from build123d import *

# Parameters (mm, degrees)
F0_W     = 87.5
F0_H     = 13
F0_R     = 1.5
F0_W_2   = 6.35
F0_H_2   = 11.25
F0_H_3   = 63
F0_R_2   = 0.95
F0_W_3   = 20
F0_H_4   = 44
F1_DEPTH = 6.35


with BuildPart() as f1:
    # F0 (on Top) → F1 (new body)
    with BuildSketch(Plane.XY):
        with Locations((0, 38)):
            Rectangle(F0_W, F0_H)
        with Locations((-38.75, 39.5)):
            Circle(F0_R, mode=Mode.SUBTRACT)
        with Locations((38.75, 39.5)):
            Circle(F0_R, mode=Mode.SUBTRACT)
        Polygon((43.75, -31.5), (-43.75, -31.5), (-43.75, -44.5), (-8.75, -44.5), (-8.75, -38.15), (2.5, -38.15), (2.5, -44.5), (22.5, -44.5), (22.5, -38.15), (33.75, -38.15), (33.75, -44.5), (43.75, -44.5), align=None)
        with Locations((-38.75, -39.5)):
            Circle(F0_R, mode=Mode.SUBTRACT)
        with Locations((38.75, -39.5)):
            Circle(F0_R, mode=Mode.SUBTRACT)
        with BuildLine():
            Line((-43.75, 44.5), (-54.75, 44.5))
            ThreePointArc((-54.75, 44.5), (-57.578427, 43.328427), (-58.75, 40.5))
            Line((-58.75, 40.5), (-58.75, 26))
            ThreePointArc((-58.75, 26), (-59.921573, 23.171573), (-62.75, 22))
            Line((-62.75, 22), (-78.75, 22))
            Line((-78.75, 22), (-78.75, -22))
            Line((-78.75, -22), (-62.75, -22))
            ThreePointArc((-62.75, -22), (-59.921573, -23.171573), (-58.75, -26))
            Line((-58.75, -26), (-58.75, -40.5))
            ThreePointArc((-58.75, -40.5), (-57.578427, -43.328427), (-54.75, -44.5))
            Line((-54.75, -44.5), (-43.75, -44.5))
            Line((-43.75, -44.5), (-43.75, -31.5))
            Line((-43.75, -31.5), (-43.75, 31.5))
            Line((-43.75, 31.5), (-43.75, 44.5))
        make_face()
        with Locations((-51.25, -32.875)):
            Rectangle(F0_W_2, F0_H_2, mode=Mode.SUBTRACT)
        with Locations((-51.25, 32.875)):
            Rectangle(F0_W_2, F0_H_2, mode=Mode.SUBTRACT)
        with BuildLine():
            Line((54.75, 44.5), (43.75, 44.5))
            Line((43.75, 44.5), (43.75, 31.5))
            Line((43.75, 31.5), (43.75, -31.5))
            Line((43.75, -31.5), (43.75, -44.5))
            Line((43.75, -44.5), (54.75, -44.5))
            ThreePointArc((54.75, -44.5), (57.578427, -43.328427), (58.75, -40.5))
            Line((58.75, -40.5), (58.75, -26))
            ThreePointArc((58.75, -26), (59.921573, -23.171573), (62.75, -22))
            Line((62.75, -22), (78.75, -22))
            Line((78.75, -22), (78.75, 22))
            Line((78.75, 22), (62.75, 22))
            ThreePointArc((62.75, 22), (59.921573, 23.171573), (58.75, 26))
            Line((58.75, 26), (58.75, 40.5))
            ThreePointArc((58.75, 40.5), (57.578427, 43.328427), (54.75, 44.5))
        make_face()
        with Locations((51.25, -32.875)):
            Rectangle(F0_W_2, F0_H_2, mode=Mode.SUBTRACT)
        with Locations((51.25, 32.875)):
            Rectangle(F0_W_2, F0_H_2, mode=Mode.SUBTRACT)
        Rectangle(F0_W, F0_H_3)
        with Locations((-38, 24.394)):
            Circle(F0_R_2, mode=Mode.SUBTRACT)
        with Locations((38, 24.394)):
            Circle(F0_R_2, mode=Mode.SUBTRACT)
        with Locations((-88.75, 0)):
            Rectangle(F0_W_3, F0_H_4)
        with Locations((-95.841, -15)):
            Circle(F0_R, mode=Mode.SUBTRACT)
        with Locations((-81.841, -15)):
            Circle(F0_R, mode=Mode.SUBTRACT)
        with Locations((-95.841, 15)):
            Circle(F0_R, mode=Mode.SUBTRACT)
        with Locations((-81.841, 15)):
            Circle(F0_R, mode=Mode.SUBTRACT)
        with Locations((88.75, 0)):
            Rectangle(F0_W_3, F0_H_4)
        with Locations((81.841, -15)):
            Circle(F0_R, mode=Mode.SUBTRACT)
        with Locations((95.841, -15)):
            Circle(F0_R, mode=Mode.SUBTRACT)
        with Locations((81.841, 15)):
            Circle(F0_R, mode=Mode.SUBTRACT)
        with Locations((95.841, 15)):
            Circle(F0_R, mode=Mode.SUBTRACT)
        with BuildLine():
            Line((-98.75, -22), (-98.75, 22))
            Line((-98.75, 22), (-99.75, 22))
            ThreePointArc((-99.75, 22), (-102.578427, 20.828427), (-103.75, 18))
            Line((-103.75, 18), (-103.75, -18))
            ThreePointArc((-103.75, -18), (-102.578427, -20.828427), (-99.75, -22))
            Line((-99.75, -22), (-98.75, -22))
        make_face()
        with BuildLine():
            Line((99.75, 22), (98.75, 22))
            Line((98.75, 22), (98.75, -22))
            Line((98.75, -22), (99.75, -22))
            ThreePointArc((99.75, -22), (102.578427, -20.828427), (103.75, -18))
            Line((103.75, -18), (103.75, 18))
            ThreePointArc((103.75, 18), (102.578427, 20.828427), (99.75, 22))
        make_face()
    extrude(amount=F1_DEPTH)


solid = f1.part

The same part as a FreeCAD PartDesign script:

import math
import FreeCAD as App
import Part
import Sketcher
from FreeCAD import Vector
Q = App.Units.Quantity


def add_polygon(sketch, points):
    """Adds a closed chain of lines whose ends are joined by coincident constraints."""
    first, n = sketch.GeometryCount, len(points)
    for a, b in zip(points, points[1:] + points[:1]):
        sketch.addGeometry(Part.LineSegment(App.Vector(*a, 0), App.Vector(*b, 0)), False)
    for i in range(n):
        sketch.addConstraint(Sketcher.Constraint("Coincident", first + i, 2, first + (i + 1) % n, 1))

doc = App.newDocument("Part")
params = doc.addObject("Spreadsheet::Sheet", "Params")
for row, (alias, value) in enumerate([
    ("sketch1_diameter", "3 mm"),
    ("sketch1_radius", "4 mm"),
    ("sketch1_diameter2", "1.9 mm"),
    ("sketch1_width", "37 mm"),
    ("sketch1_width2", "46 mm"),
    ("pad1_length", "6.35 mm"),
], start=1):
    params.set(f"A{row}", alias)
    params.set(f"B{row}", "=" + value)
    params.setAlias(f"B{row}", alias)

body = doc.addObject("PartDesign::Body", "Body")

sketch1 = doc.addObject("Sketcher::SketchObject", "Sketch")
body.addObject(sketch1)
sketch1.AttachmentSupport = (doc.XY_Plane, [""])
sketch1.MapMode = "FlatFace"
sketch1.addGeometry(Part.ArcOfCircle(Part.Circle(Vector(-54.7, 40.5, 0), Vector(0, 0, 1), 4), math.radians(90), math.radians(180)), False)
sketch1.addGeometry(Part.LineSegment(Vector(-58.8, 40.5, 0), Vector(-58.8, 26, 0)), False)
sketch1.addGeometry(Part.ArcOfCircle(Part.Circle(Vector(-62.8, 26, 0), Vector(0, 0, 1), 4), math.radians(-90), math.radians(0)), False)
sketch1.addGeometry(Part.LineSegment(Vector(-62.8, 22, 0), Vector(-99.8, 22, 0)), False)
sketch1.addGeometry(Part.ArcOfCircle(Part.Circle(Vector(-99.7, 18, 0), Vector(0, 0, 1), 4), math.radians(90), math.radians(180)), False)
sketch1.addGeometry(Part.LineSegment(Vector(-103.8, 18, 0), Vector(-103.8, -18, 0)), False)
sketch1.addGeometry(Part.ArcOfCircle(Part.Circle(Vector(-99.7, -18, 0), Vector(0, 0, 1), 4), math.radians(-180), math.radians(-90)), False)
sketch1.addGeometry(Part.LineSegment(Vector(-99.8, -22, 0), Vector(-62.8, -22, 0)), False)
sketch1.addGeometry(Part.ArcOfCircle(Part.Circle(Vector(-62.8, -26, 0), Vector(0, 0, 1), 4), math.radians(0), math.radians(90)), False)
sketch1.addGeometry(Part.LineSegment(Vector(-58.8, -26, 0), Vector(-58.8, -40.5, 0)), False)
sketch1.addGeometry(Part.ArcOfCircle(Part.Circle(Vector(-54.7, -40.5, 0), Vector(0, 0, 1), 4), math.radians(-180), math.radians(-90)), False)
sketch1.addGeometry(Part.LineSegment(Vector(-54.8, -44.5, 0), Vector(-8.8, -44.5, 0)), False)
sketch1.addGeometry(Part.LineSegment(Vector(-8.8, -44.5, 0), Vector(-8.8, -38.1, 0)), False)
sketch1.addGeometry(Part.LineSegment(Vector(-8.8, -38.1, 0), Vector(2.5, -38.1, 0)), False)
sketch1.addGeometry(Part.LineSegment(Vector(2.5, -38.1, 0), Vector(2.5, -44.5, 0)), False)
sketch1.addGeometry(Part.LineSegment(Vector(2.5, -44.5, 0), Vector(22.5, -44.5, 0)), False)
sketch1.addGeometry(Part.LineSegment(Vector(22.5, -44.5, 0), Vector(22.5, -38.1, 0)), False)
sketch1.addGeometry(Part.LineSegment(Vector(22.5, -38.1, 0), Vector(33.8, -38.1, 0)), False)
sketch1.addGeometry(Part.LineSegment(Vector(33.8, -38.1, 0), Vector(33.8, -44.5, 0)), False)
sketch1.addGeometry(Part.LineSegment(Vector(33.8, -44.5, 0), Vector(54.8, -44.5, 0)), False)
sketch1.addGeometry(Part.ArcOfCircle(Part.Circle(Vector(54.7, -40.5, 0), Vector(0, 0, 1), 4), math.radians(-90), math.radians(0)), False)
sketch1.addGeometry(Part.LineSegment(Vector(58.8, -40.5, 0), Vector(58.8, -26, 0)), False)
sketch1.addGeometry(Part.ArcOfCircle(Part.Circle(Vector(62.8, -26, 0), Vector(0, 0, 1), 4), math.radians(90), math.radians(180)), False)
sketch1.addGeometry(Part.LineSegment(Vector(62.8, -22, 0), Vector(99.8, -22, 0)), False)
sketch1.addGeometry(Part.ArcOfCircle(Part.Circle(Vector(99.7, -18, 0), Vector(0, 0, 1), 4), math.radians(-90), math.radians(0)), False)
sketch1.addGeometry(Part.LineSegment(Vector(103.8, -18, 0), Vector(103.8, 18, 0)), False)
sketch1.addGeometry(Part.ArcOfCircle(Part.Circle(Vector(99.7, 18, 0), Vector(0, 0, 1), 4), math.radians(0), math.radians(90)), False)
sketch1.addGeometry(Part.LineSegment(Vector(99.8, 22, 0), Vector(62.8, 22, 0)), False)
sketch1.addGeometry(Part.ArcOfCircle(Part.Circle(Vector(62.8, 26, 0), Vector(0, 0, 1), 4), math.radians(-180), math.radians(-90)), False)
sketch1.addGeometry(Part.LineSegment(Vector(58.8, 26, 0), Vector(58.8, 40.5, 0)), False)
sketch1.addGeometry(Part.ArcOfCircle(Part.Circle(Vector(54.7, 40.5, 0), Vector(0, 0, 1), 4), math.radians(0), math.radians(90)), False)
sketch1.addGeometry(Part.LineSegment(Vector(54.8, 44.5, 0), Vector(-54.8, 44.5, 0)), False)
add_polygon(sketch1, [(-48.1, -38.5), (-54.4, -38.5), (-54.4, -27.2), (-48.1, -27.2)])
sketch1.addGeometry(Part.Circle(Vector(-38.8, -39.5, 0), Vector(0, 0, 1), 1.5), False)
sketch1.addGeometry(Part.Circle(Vector(-95.8, -15, 0), Vector(0, 0, 1), 1.5), False)
sketch1.addGeometry(Part.Circle(Vector(-81.8, -15, 0), Vector(0, 0, 1), 1.5), False)
sketch1.addGeometry(Part.Circle(Vector(38.8, -39.5, 0), Vector(0, 0, 1), 1.5), False)
add_polygon(sketch1, [(54.4, -38.5), (48.1, -38.5), (48.1, -27.2), (54.4, -27.2)])
sketch1.addGeometry(Part.Circle(Vector(81.8, -15, 0), Vector(0, 0, 1), 1.5), False)
sketch1.addGeometry(Part.Circle(Vector(95.8, -15, 0), Vector(0, 0, 1), 1.5), False)
sketch1.addGeometry(Part.Circle(Vector(-95.8, 15, 0), Vector(0, 0, 1), 1.5), False)
sketch1.addGeometry(Part.Circle(Vector(-81.8, 15, 0), Vector(0, 0, 1), 1.5), False)
add_polygon(sketch1, [(-48.1, 27.2), (-54.4, 27.2), (-54.4, 38.5), (-48.1, 38.5)])
sketch1.addGeometry(Part.Circle(Vector(-38, 24.4, 0), Vector(0, 0, 1), 0.9), False)
sketch1.addGeometry(Part.Circle(Vector(-38.8, 39.5, 0), Vector(0, 0, 1), 1.5), False)
sketch1.addGeometry(Part.Circle(Vector(81.8, 15, 0), Vector(0, 0, 1), 1.5), False)
sketch1.addGeometry(Part.Circle(Vector(95.8, 15, 0), Vector(0, 0, 1), 1.5), False)
sketch1.addGeometry(Part.Circle(Vector(38, 24.4, 0), Vector(0, 0, 1), 0.9), False)
sketch1.addGeometry(Part.Circle(Vector(38.8, 39.5, 0), Vector(0, 0, 1), 1.5), False)
add_polygon(sketch1, [(54.4, 27.2), (48.1, 27.2), (48.1, 38.5), (54.4, 38.5)])
sketch1.addConstraint([
    Sketcher.Constraint("Tangent", 0, 2, 1, 1),
    Sketcher.Constraint("Tangent", 1, 2, 2, 2),
    Sketcher.Constraint("Tangent", 2, 1, 3, 1),
    Sketcher.Constraint("Tangent", 3, 2, 4, 1),
    Sketcher.Constraint("Tangent", 4, 2, 5, 1),
    Sketcher.Constraint("Tangent", 5, 2, 6, 1),
    Sketcher.Constraint("Tangent", 6, 2, 7, 1),
    Sketcher.Constraint("Tangent", 7, 2, 8, 2),
    Sketcher.Constraint("Tangent", 8, 1, 9, 1),
    Sketcher.Constraint("Tangent", 9, 2, 10, 1),
    Sketcher.Constraint("Tangent", 10, 2, 11, 1),
    Sketcher.Constraint("Coincident", 11, 2, 12, 1),
    Sketcher.Constraint("Coincident", 12, 2, 13, 1),
    Sketcher.Constraint("Coincident", 13, 2, 14, 1),
    Sketcher.Constraint("Coincident", 14, 2, 15, 1),
    Sketcher.Constraint("Coincident", 15, 2, 16, 1),
    Sketcher.Constraint("Coincident", 16, 2, 17, 1),
    Sketcher.Constraint("Coincident", 17, 2, 18, 1),
    Sketcher.Constraint("Coincident", 18, 2, 19, 1),
    Sketcher.Constraint("Tangent", 19, 2, 20, 1),
    Sketcher.Constraint("Tangent", 20, 2, 21, 1),
    Sketcher.Constraint("Tangent", 21, 2, 22, 2),
    Sketcher.Constraint("Tangent", 22, 1, 23, 1),
    Sketcher.Constraint("Tangent", 23, 2, 24, 1),
    Sketcher.Constraint("Tangent", 24, 2, 25, 1),
    Sketcher.Constraint("Tangent", 25, 2, 26, 1),
    Sketcher.Constraint("Tangent", 26, 2, 27, 1),
    Sketcher.Constraint("Tangent", 27, 2, 28, 2),
    Sketcher.Constraint("Tangent", 28, 1, 29, 1),
    Sketcher.Constraint("Tangent", 29, 2, 30, 1),
    Sketcher.Constraint("Tangent", 30, 2, 31, 1),
    Sketcher.Constraint("Tangent", 31, 2, 0, 1),
    Sketcher.Constraint("Vertical", 1),
    Sketcher.Constraint("Horizontal", 3),
    Sketcher.Constraint("Vertical", 5),
    Sketcher.Constraint("Horizontal", 7),
    Sketcher.Constraint("Vertical", 9),
    Sketcher.Constraint("Horizontal", 11),
    Sketcher.Constraint("Vertical", 12),
    Sketcher.Constraint("Horizontal", 13),
    Sketcher.Constraint("Vertical", 14),
    Sketcher.Constraint("Horizontal", 15),
    Sketcher.Constraint("Vertical", 16),
    Sketcher.Constraint("Horizontal", 17),
    Sketcher.Constraint("Vertical", 18),
    Sketcher.Constraint("Horizontal", 19),
    Sketcher.Constraint("Vertical", 21),
    Sketcher.Constraint("Horizontal", 23),
    Sketcher.Constraint("Vertical", 25),
    Sketcher.Constraint("Horizontal", 27),
    Sketcher.Constraint("Vertical", 29),
    Sketcher.Constraint("Horizontal", 31),
    Sketcher.Constraint("Horizontal", 32),
    Sketcher.Constraint("Vertical", 33),
    Sketcher.Constraint("Horizontal", 34),
    Sketcher.Constraint("Vertical", 35),
    Sketcher.Constraint("Horizontal", 40),
    Sketcher.Constraint("Vertical", 41),
    Sketcher.Constraint("Horizontal", 42),
    Sketcher.Constraint("Vertical", 43),
    Sketcher.Constraint("Horizontal", 48),
    Sketcher.Constraint("Vertical", 49),
    Sketcher.Constraint("Horizontal", 50),
    Sketcher.Constraint("Vertical", 51),
    Sketcher.Constraint("Horizontal", 58),
    Sketcher.Constraint("Vertical", 59),
    Sketcher.Constraint("Horizontal", 60),
    Sketcher.Constraint("Vertical", 61),
    Sketcher.Constraint("Equal", 0, 2),
    Sketcher.Constraint("Equal", 2, 4),
    Sketcher.Constraint("Equal", 4, 6),
    Sketcher.Constraint("Equal", 6, 8),
    Sketcher.Constraint("Equal", 8, 10),
    Sketcher.Constraint("Equal", 10, 20),
    Sketcher.Constraint("Equal", 20, 22),
    Sketcher.Constraint("Equal", 22, 24),
    Sketcher.Constraint("Equal", 24, 26),
    Sketcher.Constraint("Equal", 26, 28),
    Sketcher.Constraint("Equal", 28, 30),
    Sketcher.Constraint("Equal", 36, 37),
    Sketcher.Constraint("Equal", 37, 38),
    Sketcher.Constraint("Equal", 38, 39),
    Sketcher.Constraint("Equal", 39, 44),
    Sketcher.Constraint("Equal", 44, 45),
    Sketcher.Constraint("Equal", 45, 46),
    Sketcher.Constraint("Equal", 46, 47),
    Sketcher.Constraint("Equal", 47, 53),
    Sketcher.Constraint("Equal", 53, 54),
    Sketcher.Constraint("Equal", 54, 55),
    Sketcher.Constraint("Equal", 52, 56),
    Sketcher.Constraint("Equal", 55, 57),
    Sketcher.Constraint("Symmetric", 0, 3, 20, 3, -1, 1),
    Sketcher.Constraint("Symmetric", 4, 3, 24, 3, -1, 1),
    Sketcher.Constraint("Symmetric", 8, 3, 28, 3, -1, 1),
    Sketcher.Constraint("Symmetric", 45, 3, 46, 3, -1, 1),
    Sketcher.Constraint("Symmetric", 44, 3, 47, 3, -1, 1),
    Sketcher.Constraint("Symmetric", 39, 3, 53, 3, -1, 1),
    Sketcher.Constraint("Symmetric", 38, 3, 54, 3, -1, 1),
    Sketcher.Constraint("Symmetric", 37, 3, 55, 3, -1, 1),
    Sketcher.Constraint("Symmetric", 36, 3, 57, 3, -1, 1),
    Sketcher.Constraint("Symmetric", 42, 2, 48, 2, -1, 1),
    Sketcher.Constraint("Symmetric", 40, 2, 50, 2, -1, 1),
    Sketcher.Constraint("Symmetric", 34, 2, 58, 2, -1, 1),
    Sketcher.Constraint("Symmetric", 32, 2, 60, 2, -1, 1),
    Sketcher.Constraint("Symmetric", 10, 3, 20, 3, -2),
    Sketcher.Constraint("Symmetric", 36, 3, 39, 3, -2),
    Sketcher.Constraint("Symmetric", 38, 3, 44, 3, -2),
    Sketcher.Constraint("Symmetric", 37, 3, 45, 3, -2),
    Sketcher.Constraint("Symmetric", 52, 3, 56, 3, -2),
    Sketcher.Constraint("Symmetric", 35, 2, 40, 2, -2),
    Sketcher.Constraint("Symmetric", 33, 2, 42, 2, -2),
    Sketcher.Constraint("Horizontal", 8, 3, 22, 3),
    Sketcher.Constraint("Horizontal", 37, 3, 38, 3),
    Sketcher.Constraint("Horizontal", 11, 2, 14, 2),
    Sketcher.Constraint("Horizontal", 13, 2, 16, 2),
    Sketcher.Constraint("Equal", 13, 17),
    Sketcher.Constraint("Equal", 60, 12),
    Sketcher.Constraint("Equal", 17, 33),
    Sketcher.Constraint("Diameter", 36, Q("3 mm")),
    Sketcher.Constraint("Radius", 0, Q("4 mm")),
    Sketcher.Constraint("Diameter", 52, Q("1.9 mm")),
    Sketcher.Constraint("DistanceX", 3, 2, 3, 1, Q("37 mm")),
    Sketcher.Constraint("DistanceX", 11, 1, 11, 2, Q("46 mm")),
    Sketcher.Constraint("DistanceX", 15, 1, 15, 2, Q("20 mm")),
    Sketcher.Constraint("DistanceX", 19, 1, 19, 2, Q("21 mm")),
    Sketcher.Constraint("DistanceY", 5, 2, 5, 1, Q("36 mm")),
    Sketcher.Constraint("DistanceX", 31, 2, 31, 1, Q("109.5 mm")),
    Sketcher.Constraint("DistanceY", 1, 2, 1, 1, Q("14.5 mm")),
    Sketcher.Constraint("DistanceY", 37, 3, -1, 1, Q("15 mm")),
    Sketcher.Constraint("DistanceX", 52, 3, -1, 1, Q("38 mm")),
    Sketcher.Constraint("DistanceX", 32, 2, 32, 1, Q("6.35 mm")),
    Sketcher.Constraint("DistanceY", 36, 3, -1, 1, Q("39.5 mm")),
    Sketcher.Constraint("DistanceY", 32, 2, -1, 1, Q("38.5 mm")),
    Sketcher.Constraint("DistanceX", 36, 3, -1, 1, Q("38.75 mm")),
    Sketcher.Constraint("DistanceX", 37, 3, -1, 1, Q("95.841 mm")),
    Sketcher.Constraint("DistanceX", 38, 3, -1, 1, Q("81.841 mm")),
    Sketcher.Constraint("DistanceY", -1, 1, 52, 3, Q("24.394 mm")),
    Sketcher.Constraint("DistanceX", 32, 2, -1, 1, Q("54.425 mm")),
])
sketch1.setExpression("Constraints[134]", "Params.sketch1_diameter")
sketch1.setExpression("Constraints[135]", "Params.sketch1_radius")
sketch1.setExpression("Constraints[136]", "Params.sketch1_diameter2")
sketch1.setExpression("Constraints[137]", "Params.sketch1_width")
sketch1.setExpression("Constraints[138]", "Params.sketch1_width2")
pad1 = doc.addObject("PartDesign::Pad", "Pad")
body.addObject(pad1)
pad1.Profile = sketch1
pad1.setExpression("Length", "Params.pad1_length")

doc.recompute()
